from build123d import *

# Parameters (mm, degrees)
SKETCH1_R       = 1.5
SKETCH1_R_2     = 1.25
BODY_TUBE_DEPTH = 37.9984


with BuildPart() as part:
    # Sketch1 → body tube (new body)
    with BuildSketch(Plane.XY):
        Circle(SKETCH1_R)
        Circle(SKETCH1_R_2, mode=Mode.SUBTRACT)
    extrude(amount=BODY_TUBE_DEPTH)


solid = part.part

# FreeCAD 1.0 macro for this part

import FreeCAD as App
import Part
import Sketcher
Q = App.Units.Quantity

doc = App.newDocument("Part")
body = doc.addObject("PartDesign::Body", "Body")

sketch1 = doc.addObject("Sketcher::SketchObject", "Sketch")
body.addObject(sketch1)
sketch1.AttachmentSupport = (doc.XY_Plane, [""])
sketch1.MapMode = "FlatFace"
sketch1.addGeometry([
    Part.Circle(App.Vector(0, 0, 0), App.Vector(0, 0, 1), 1.5),
    Part.Circle(App.Vector(0, 0, 0), App.Vector(0, 0, 1), 1.2),
], False)
sketch1.addConstraint([
    Sketcher.Constraint("Coincident", 0, 3, -1, 1),
    Sketcher.Constraint("Coincident", 1, 3, -1, 1),
    Sketcher.Constraint("Diameter", 0, Q("3 mm")),
    Sketcher.Constraint("Diameter", 1, Q("2.5 mm")),
])
pad1 = doc.addObject("PartDesign::Pad", "Pad")
body.addObject(pad1)
pad1.Profile = sketch1
pad1.Length = 37.9984

doc.recompute()
